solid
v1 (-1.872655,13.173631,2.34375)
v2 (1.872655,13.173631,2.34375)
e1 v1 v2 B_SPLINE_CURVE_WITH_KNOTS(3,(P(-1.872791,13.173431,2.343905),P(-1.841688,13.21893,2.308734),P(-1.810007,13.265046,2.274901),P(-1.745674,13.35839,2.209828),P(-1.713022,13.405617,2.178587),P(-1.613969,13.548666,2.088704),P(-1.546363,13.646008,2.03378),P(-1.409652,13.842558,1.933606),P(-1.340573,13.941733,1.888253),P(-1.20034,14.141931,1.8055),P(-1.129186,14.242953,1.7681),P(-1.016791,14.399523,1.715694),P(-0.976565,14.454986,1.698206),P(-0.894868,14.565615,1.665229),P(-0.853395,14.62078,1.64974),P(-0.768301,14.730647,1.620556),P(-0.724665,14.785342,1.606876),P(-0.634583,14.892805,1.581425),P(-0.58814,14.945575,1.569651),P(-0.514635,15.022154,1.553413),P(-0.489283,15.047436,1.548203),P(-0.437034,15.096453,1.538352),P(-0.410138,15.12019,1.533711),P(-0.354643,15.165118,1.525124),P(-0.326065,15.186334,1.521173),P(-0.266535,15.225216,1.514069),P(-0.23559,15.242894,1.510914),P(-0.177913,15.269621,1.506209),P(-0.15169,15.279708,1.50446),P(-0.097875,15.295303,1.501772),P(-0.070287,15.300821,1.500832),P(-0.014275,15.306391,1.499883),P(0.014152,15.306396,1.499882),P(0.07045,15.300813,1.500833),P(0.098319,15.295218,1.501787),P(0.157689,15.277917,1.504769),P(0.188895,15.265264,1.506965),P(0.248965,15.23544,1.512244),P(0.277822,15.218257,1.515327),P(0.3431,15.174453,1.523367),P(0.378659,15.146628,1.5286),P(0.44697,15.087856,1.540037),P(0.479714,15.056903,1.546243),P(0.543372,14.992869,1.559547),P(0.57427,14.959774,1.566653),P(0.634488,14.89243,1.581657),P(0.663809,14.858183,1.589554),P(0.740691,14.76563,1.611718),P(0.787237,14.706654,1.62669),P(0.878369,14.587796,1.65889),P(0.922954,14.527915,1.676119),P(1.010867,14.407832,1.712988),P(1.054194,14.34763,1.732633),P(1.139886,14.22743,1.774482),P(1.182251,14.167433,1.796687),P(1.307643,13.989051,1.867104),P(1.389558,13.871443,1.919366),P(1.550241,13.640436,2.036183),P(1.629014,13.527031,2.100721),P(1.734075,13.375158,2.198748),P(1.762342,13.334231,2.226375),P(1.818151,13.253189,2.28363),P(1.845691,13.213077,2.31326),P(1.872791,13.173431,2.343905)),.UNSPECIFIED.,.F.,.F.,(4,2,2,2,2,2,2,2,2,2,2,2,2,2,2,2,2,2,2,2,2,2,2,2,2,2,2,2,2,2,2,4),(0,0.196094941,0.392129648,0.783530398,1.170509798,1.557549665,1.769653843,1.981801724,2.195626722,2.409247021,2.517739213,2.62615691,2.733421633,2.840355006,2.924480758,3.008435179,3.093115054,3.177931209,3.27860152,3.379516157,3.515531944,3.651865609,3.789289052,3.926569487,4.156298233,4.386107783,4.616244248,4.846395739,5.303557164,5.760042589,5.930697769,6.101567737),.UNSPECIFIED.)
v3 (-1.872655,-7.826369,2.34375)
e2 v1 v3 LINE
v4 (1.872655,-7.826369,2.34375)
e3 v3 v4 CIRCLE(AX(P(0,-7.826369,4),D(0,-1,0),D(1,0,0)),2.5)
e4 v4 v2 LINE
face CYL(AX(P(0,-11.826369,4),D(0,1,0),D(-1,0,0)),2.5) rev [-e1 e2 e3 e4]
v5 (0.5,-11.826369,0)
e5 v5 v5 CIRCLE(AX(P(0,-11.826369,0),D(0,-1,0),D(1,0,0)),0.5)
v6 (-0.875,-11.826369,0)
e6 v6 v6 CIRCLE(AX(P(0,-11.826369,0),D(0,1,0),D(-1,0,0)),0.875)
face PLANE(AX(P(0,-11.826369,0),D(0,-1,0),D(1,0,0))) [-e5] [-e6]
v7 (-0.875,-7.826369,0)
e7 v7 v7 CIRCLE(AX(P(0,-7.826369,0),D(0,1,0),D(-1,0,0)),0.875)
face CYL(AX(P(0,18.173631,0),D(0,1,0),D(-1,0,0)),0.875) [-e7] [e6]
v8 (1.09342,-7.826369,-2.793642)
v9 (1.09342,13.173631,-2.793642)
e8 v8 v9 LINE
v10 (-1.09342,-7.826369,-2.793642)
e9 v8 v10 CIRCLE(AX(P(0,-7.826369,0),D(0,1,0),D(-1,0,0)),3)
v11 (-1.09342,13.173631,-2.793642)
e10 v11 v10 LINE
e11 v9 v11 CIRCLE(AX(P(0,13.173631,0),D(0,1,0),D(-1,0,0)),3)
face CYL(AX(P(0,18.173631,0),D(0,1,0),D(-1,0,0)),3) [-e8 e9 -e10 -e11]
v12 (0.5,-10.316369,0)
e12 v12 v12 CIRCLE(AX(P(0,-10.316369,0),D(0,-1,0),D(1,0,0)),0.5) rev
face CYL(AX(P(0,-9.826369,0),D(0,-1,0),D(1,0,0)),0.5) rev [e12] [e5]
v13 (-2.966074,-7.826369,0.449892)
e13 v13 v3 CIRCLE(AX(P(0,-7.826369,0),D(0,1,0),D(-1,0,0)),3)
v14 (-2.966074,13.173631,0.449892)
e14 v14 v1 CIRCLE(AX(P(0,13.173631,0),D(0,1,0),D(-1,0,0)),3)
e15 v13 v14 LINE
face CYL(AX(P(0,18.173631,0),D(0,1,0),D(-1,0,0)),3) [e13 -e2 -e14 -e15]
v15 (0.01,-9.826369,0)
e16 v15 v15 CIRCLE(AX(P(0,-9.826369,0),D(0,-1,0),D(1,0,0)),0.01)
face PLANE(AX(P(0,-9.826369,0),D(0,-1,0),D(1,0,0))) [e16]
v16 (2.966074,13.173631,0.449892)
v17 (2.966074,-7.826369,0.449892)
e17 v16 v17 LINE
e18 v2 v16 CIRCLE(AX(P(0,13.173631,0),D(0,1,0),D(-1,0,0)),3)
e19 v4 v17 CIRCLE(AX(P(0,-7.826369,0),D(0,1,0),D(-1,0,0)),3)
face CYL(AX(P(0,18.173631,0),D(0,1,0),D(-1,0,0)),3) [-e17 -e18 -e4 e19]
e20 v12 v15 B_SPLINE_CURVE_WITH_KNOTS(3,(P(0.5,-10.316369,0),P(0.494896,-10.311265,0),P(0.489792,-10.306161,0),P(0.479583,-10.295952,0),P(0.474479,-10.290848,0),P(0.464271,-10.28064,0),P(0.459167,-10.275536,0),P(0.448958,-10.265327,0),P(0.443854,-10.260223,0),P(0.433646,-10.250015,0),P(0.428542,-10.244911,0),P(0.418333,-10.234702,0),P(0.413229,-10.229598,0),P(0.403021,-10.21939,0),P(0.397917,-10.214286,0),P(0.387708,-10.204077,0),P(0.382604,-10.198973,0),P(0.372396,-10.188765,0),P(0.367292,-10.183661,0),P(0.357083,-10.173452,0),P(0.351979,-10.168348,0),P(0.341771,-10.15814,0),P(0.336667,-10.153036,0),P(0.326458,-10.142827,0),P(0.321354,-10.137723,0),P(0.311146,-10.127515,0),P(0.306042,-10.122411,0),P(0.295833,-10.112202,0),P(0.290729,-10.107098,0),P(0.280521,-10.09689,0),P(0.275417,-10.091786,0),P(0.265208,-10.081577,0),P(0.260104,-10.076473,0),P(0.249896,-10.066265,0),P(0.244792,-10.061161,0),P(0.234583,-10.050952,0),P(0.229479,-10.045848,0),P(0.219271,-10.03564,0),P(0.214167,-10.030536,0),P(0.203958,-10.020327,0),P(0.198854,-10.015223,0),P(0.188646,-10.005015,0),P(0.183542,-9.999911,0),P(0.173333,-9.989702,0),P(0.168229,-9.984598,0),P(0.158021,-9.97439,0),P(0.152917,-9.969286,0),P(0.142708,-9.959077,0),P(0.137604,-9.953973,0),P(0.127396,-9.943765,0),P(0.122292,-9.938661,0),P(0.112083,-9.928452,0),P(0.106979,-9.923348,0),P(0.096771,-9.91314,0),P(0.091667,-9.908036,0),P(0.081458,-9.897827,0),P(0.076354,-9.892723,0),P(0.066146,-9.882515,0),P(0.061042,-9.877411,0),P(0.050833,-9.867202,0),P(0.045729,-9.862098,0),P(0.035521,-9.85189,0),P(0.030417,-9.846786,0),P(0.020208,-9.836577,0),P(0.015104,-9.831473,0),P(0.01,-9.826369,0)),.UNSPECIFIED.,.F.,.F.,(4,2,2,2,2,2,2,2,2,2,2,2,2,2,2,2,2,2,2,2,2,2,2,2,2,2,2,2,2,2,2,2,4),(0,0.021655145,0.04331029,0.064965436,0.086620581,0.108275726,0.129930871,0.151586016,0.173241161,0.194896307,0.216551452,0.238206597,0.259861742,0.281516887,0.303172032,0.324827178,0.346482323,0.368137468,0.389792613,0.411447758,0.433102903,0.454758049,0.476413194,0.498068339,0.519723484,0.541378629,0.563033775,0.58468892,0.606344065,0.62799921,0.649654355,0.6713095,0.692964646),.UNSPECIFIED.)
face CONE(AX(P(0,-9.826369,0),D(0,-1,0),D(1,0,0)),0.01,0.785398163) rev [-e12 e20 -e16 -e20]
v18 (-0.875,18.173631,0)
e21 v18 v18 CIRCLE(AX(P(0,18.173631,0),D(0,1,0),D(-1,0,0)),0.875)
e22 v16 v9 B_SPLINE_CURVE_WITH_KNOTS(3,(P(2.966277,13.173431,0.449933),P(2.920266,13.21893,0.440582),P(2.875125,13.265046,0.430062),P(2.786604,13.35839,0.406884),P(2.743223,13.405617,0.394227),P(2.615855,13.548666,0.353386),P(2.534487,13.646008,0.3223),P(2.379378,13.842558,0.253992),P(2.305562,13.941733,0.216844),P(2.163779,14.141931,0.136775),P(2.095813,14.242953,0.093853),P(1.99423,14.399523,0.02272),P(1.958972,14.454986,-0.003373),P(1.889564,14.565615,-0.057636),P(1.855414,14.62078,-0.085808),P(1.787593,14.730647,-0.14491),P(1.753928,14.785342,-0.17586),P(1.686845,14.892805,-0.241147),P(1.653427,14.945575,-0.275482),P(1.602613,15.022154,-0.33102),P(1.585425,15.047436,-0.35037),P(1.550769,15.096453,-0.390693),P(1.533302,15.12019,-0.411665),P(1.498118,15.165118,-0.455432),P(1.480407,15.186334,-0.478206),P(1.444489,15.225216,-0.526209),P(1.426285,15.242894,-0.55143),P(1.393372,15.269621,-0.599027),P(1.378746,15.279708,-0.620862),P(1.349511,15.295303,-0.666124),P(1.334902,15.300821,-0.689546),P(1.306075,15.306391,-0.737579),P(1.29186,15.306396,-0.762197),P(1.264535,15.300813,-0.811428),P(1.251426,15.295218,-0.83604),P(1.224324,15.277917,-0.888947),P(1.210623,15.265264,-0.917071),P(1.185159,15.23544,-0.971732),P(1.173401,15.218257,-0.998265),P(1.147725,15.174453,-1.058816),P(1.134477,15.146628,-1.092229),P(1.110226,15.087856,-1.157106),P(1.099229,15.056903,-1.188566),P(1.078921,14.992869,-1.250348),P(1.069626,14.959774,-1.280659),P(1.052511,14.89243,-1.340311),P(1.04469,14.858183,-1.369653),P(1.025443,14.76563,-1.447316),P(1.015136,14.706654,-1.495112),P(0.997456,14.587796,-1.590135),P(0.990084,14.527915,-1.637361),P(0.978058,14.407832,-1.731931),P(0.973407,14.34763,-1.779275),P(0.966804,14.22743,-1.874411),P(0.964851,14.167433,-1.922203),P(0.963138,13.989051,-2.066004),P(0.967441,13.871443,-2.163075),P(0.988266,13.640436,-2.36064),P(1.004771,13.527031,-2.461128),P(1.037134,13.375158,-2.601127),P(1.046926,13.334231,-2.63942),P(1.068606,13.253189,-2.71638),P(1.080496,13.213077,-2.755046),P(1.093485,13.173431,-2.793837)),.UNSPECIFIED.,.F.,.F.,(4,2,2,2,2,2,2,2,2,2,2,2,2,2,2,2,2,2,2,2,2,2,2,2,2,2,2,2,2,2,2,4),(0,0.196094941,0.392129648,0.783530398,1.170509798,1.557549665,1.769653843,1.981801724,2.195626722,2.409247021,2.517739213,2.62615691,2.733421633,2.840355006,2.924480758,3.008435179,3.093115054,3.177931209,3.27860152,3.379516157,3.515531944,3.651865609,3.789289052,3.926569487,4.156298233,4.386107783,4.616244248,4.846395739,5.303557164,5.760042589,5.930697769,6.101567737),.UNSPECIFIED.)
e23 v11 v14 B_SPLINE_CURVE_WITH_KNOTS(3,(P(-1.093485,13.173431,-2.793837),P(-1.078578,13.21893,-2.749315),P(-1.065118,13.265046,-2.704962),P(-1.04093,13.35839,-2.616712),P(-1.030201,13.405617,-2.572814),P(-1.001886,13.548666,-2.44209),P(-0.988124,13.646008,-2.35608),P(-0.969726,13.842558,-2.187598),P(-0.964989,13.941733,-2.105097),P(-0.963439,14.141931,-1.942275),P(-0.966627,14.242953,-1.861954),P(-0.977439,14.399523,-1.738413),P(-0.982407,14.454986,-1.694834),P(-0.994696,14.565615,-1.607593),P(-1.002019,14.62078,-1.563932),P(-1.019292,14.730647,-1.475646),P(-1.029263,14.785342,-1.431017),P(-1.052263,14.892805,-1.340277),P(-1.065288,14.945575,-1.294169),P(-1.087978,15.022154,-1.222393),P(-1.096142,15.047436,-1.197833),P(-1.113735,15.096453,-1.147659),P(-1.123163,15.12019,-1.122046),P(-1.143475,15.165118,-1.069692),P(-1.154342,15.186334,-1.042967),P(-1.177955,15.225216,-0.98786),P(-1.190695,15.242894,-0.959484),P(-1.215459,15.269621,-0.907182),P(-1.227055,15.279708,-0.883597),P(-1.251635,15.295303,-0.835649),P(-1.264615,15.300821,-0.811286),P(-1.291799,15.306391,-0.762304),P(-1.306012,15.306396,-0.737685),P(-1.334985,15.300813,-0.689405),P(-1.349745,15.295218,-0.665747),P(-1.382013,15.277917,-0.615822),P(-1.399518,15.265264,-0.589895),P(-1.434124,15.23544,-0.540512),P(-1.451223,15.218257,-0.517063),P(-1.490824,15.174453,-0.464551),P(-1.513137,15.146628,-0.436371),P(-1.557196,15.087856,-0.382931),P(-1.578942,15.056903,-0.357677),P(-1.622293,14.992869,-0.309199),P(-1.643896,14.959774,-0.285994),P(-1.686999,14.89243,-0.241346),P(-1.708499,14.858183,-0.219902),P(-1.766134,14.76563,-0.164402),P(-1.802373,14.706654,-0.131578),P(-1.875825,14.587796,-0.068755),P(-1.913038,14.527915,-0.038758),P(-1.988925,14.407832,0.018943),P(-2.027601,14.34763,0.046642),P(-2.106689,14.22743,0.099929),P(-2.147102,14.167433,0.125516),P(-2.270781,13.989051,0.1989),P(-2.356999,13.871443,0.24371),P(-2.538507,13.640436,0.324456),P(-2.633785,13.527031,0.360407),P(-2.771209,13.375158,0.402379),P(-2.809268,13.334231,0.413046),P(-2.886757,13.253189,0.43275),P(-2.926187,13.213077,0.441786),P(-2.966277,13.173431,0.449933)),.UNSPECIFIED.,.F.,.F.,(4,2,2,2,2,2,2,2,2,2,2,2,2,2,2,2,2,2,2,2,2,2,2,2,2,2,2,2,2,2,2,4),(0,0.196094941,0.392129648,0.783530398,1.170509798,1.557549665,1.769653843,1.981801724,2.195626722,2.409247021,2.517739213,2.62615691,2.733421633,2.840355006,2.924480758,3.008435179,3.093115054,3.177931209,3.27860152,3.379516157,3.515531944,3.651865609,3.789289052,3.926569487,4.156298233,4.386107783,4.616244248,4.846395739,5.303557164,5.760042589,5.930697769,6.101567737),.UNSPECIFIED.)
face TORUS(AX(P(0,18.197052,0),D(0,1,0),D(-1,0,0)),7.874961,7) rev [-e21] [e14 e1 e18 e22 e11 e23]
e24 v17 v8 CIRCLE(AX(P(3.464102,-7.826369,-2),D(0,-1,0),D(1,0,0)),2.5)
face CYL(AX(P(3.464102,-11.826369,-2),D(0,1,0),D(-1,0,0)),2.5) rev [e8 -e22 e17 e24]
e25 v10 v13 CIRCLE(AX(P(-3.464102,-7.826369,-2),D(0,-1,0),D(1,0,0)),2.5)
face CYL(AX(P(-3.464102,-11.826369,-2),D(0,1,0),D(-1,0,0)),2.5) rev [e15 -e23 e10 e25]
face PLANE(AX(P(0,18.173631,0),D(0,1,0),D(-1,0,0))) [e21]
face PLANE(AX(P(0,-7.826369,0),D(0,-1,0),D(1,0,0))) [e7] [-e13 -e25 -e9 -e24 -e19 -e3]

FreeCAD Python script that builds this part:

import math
import FreeCAD as App
import Part
import Sketcher
from FreeCAD import Vector


def edges_at(feature, points):
    """Names of the edges that pass closest to the given points."""
    edges = feature.Shape.Edges
    near = lambda p: min(range(len(edges)), key=lambda i: edges[i].distToShape(Part.Vertex(*p))[0])
    return sorted({f"Edge{near(p) + 1}" for p in points})

doc = App.newDocument("Part")
params = doc.addObject("Spreadsheet::Sheet", "Params")
for row, (alias, value) in enumerate([
    ("sketch1_radius", "7 mm"),
    ("sketch1_height", "30 mm"),
    ("sketch1_height2", "21 mm"),
    ("sketch1_height3", "4 mm"),
    ("revolution_angle", "360 deg"),
    ("sketch2_diameter", "5 mm"),
    ("sketch3_diameter", "1 mm"),
    ("pocket2_length", "2 mm"),
    ("chamfer_size", "0.49 mm"),
], start=1):
    params.set(f"A{row}", alias)
    params.set(f"B{row}", "=" + value)
    params.setAlias(f"B{row}", alias)

body = doc.addObject("PartDesign::Body", "Body")

# Sketch on XY plane
sketch1 = body.newObject("Sketcher::SketchObject", "Sketch")
sketch1.AttachmentSupport = (doc.getObject("XY_Plane"), [""])
sketch1.MapMode = "FlatFace"
sketch1.addGeometry([
    Part.LineSegment(Vector(0, -11.8, 0), Vector(0, 18.2, 0)),  # 0
    Part.LineSegment(Vector(0, 18.2, 0), Vector(-0.9, 18.2, 0)),  # 1
    Part.ArcOfCircle(Part.Circle(Vector(-7.9, 18.2, 0), Vector(0, 0, 1), 7), math.radians(-46), math.radians(0)),  # 2
    Part.LineSegment(Vector(-3, 13.2, 0), Vector(-3, -7.8, 0)),  # 3
    Part.LineSegment(Vector(-3, -7.8, 0), Vector(-0.9, -7.8, 0)),  # 4
    Part.LineSegment(Vector(-0.9, -7.8, 0), Vector(-0.9, -11.8, 0)),  # 5
    Part.LineSegment(Vector(-0.9, -11.8, 0), Vector(0, -11.8, 0)),  # 6
], False)
sketch1.addConstraint([
    Sketcher.Constraint("Coincident", 0, 2, 1, 1),
    Sketcher.Constraint("Coincident", 1, 2, 2, 2),
    Sketcher.Constraint("Coincident", 2, 1, 3, 1),
    Sketcher.Constraint("Coincident", 3, 2, 4, 1),
    Sketcher.Constraint("Coincident", 4, 2, 5, 1),
    Sketcher.Constraint("Coincident", 5, 2, 6, 1),
    Sketcher.Constraint("Coincident", 6, 2, 0, 1),
    Sketcher.Constraint("Vertical", 0),
    Sketcher.Constraint("Horizontal", 1),
    Sketcher.Constraint("Vertical", 3),
    Sketcher.Constraint("Horizontal", 4),
    Sketcher.Constraint("Vertical", 5),
    Sketcher.Constraint("Horizontal", 6),
    Sketcher.Constraint("PointOnObject", 0, 2, -2),
    Sketcher.Constraint("Vertical", 1, 2, 4, 2),
    Sketcher.Constraint("Radius", 2, 7.0),
    Sketcher.Constraint("DistanceY", 0, 1, 0, 2, 30.0),
    Sketcher.Constraint("DistanceY", 3, 2, 3, 1, 21.0),
    Sketcher.Constraint("DistanceY", 5, 2, 5, 1, 4.0),
    Sketcher.Constraint("DistanceX", 2, 1, -1, 1, 3.0),
    Sketcher.Constraint("DistanceX", 1, 2, 1, 1, 0.875),
    Sketcher.Constraint("DistanceY", -1, 1, 2, 3, 18.197052),
])
sketch1.setExpression("Constraints[15]", "Params.sketch1_radius")
sketch1.setExpression("Constraints[16]", "Params.sketch1_height")
sketch1.setExpression("Constraints[17]", "Params.sketch1_height2")
sketch1.setExpression("Constraints[18]", "Params.sketch1_height3")
revolution = body.newObject("PartDesign::Revolution", "Revolution")
revolution.Profile = sketch1
revolution.ReferenceAxis = (sketch1, ["V_Axis"])
revolution.setExpression("Angle", "Params.revolution_angle")

# Sketch on XZ plane
sketch2 = body.newObject("Sketcher::SketchObject", "Sketch001")
sketch2.AttachmentSupport = (doc.getObject("XZ_Plane"), [""])
sketch2.MapMode = "FlatFace"
sketch2.AttachmentOffset = App.Placement(Vector(0, 0, -18.173631), App.Rotation())
sketch2.addGeometry([
    Part.Circle(Vector(-3.5, -2, 0), Vector(0, 0, 1), 2.5),
    Part.Circle(Vector(3.5, -2, 0), Vector(0, 0, 1), 2.5),
    Part.Circle(Vector(0, 4, 0), Vector(0, 0, 1), 2.5),
], False)
sketch2.addConstraint([
    Sketcher.Constraint("Equal", 0, 1),
    Sketcher.Constraint("Equal", 1, 2),
    Sketcher.Constraint("Symmetric", 0, 3, 1, 3, -2),
    Sketcher.Constraint("PointOnObject", 2, 3, -2),
    Sketcher.Constraint("Diameter", 0, 5.0),
    Sketcher.Constraint("DistanceY", 0, 3, -1, 1, 2.0),
    Sketcher.Constraint("DistanceY", -1, 1, 2, 3, 4.0),
    Sketcher.Constraint("DistanceX", 0, 3, -1, 1, 3.464102),
])
sketch2.setExpression("Constraints[4]", "Params.sketch2_diameter")
pocket1 = body.newObject("PartDesign::Pocket", "Pocket")
pocket1.Profile = sketch2
pocket1.Type = "ThroughAll"
pocket1.Midplane = True

# Sketch on XZ plane
sketch3 = body.newObject("Sketcher::SketchObject", "Sketch002")
sketch3.AttachmentSupport = (doc.getObject("XZ_Plane"), [""])
sketch3.MapMode = "FlatFace"
sketch3.AttachmentOffset = App.Placement(Vector(0, 0, 11.826369), App.Rotation())
sketch3.addGeometry(Part.Circle(Vector(0, 0, 0), Vector(0, 0, 1), 0.5), False)
sketch3.addConstraint([
    Sketcher.Constraint("Coincident", 0, 3, -1, 1),
    Sketcher.Constraint("Diameter", 0, 1.0),
])
sketch3.setExpression("Constraints[1]", "Params.sketch3_diameter")
pocket2 = body.newObject("PartDesign::Pocket", "Pocket001")
pocket2.Profile = sketch3
pocket2.setExpression("Length", "Params.pocket2_length")
doc.recompute()

chamfer = body.newObject("PartDesign::Chamfer", "Chamfer")
chamfer.Base = (pocket2, edges_at(pocket2, [(-0.5, -9.826, 0)]))
chamfer.setExpression("Size", "Params.chamfer_size")

doc.recompute()
